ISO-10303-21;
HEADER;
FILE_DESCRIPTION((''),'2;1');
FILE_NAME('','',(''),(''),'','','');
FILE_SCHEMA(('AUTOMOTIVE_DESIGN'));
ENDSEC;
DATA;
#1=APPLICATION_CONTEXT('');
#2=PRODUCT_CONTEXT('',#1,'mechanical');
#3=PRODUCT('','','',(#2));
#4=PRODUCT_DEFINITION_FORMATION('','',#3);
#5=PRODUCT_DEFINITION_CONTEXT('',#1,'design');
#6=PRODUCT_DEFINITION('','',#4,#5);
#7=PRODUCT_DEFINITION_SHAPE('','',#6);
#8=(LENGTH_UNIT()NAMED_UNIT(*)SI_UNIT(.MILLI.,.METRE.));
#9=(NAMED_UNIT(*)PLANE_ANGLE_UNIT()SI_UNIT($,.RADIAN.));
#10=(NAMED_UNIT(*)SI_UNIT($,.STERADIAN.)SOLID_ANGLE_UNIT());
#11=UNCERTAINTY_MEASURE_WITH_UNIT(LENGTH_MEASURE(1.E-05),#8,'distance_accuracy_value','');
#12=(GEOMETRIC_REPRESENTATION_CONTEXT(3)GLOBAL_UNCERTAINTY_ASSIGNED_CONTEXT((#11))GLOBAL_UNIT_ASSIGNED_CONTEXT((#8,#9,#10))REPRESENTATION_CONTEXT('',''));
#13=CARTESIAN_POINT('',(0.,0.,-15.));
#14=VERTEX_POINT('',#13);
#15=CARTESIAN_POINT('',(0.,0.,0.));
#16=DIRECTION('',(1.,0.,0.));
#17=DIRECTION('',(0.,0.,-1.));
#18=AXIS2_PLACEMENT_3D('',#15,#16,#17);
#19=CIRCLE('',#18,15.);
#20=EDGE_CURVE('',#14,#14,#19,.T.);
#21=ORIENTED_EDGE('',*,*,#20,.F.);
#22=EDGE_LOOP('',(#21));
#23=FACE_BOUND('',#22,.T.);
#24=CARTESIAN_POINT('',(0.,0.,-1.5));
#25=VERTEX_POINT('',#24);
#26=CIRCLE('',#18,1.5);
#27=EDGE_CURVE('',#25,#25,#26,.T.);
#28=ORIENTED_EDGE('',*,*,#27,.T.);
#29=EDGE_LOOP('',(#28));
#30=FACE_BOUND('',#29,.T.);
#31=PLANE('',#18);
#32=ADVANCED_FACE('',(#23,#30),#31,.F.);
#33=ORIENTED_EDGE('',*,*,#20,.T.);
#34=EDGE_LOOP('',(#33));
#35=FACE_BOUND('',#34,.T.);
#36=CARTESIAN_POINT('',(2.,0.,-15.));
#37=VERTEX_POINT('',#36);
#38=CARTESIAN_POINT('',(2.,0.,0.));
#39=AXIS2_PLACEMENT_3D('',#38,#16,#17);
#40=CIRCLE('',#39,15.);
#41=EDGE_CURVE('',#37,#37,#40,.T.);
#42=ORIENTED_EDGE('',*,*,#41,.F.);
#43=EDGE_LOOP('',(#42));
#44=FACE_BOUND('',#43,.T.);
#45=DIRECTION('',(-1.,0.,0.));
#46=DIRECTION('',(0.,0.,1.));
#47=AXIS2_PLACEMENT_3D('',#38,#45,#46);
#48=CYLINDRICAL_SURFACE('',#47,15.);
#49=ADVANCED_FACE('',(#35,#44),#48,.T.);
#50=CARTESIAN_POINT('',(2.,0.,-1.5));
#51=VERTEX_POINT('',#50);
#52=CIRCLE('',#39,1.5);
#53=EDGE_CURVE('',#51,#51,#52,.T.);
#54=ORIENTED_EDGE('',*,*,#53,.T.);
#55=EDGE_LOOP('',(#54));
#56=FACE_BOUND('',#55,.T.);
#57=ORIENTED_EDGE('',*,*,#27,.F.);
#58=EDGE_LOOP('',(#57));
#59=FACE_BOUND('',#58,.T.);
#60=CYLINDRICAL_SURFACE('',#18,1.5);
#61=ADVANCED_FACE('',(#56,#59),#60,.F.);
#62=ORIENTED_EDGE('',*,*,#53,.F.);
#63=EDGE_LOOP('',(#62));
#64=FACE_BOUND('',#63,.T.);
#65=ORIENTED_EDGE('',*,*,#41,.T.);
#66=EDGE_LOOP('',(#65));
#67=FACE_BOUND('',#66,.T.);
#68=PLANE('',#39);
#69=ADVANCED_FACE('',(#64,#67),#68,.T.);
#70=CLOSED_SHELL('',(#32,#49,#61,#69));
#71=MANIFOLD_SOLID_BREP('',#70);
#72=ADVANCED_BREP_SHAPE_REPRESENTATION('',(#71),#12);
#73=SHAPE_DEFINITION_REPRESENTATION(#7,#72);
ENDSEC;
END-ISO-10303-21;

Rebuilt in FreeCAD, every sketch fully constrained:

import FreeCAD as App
import Part
import Sketcher
from FreeCAD import Vector

doc = App.newDocument("Part")
body = doc.addObject("PartDesign::Body", "Body")

# Sketch on YZ plane
sketch1 = doc.addObject("Sketcher::SketchObject", "Sketch")
body.addObject(sketch1)
sketch1.AttachmentSupport = (doc.YZ_Plane, [""])
sketch1.MapMode = "FlatFace"
sketch1.addGeometry(Part.Circle(Vector(0, 0, 0), Vector(0, 0, 1), 15), False)
sketch1.addConstraint([
    Sketcher.Constraint("Coincident", 0, 3, -1, 1),
    Sketcher.Constraint("Diameter", 0, 30.0),
])
pad1 = doc.addObject("PartDesign::Pad", "Pad")
body.addObject(pad1)
pad1.Profile = sketch1
pad1.Length = 2

# Sketch on YZ plane
sketch2 = doc.addObject("Sketcher::SketchObject", "Sketch001")
body.addObject(sketch2)
sketch2.AttachmentSupport = (doc.YZ_Plane, [""])
sketch2.MapMode = "FlatFace"
sketch2.AttachmentOffset = App.Placement(Vector(0, 0, 2), App.Rotation())
sketch2.addGeometry(Part.Circle(Vector(0, 0, 0), Vector(0, 0, 1), 1.5), False)
sketch2.addConstraint([
    Sketcher.Constraint("Coincident", 0, 3, -1, 1),
    Sketcher.Constraint("Diameter", 0, 3.0),
])
pocket1 = doc.addObject("PartDesign::Pocket", "Pocket")
body.addObject(pocket1)
pocket1.Profile = sketch2
pocket1.Type = "ThroughAll"

doc.recompute()
